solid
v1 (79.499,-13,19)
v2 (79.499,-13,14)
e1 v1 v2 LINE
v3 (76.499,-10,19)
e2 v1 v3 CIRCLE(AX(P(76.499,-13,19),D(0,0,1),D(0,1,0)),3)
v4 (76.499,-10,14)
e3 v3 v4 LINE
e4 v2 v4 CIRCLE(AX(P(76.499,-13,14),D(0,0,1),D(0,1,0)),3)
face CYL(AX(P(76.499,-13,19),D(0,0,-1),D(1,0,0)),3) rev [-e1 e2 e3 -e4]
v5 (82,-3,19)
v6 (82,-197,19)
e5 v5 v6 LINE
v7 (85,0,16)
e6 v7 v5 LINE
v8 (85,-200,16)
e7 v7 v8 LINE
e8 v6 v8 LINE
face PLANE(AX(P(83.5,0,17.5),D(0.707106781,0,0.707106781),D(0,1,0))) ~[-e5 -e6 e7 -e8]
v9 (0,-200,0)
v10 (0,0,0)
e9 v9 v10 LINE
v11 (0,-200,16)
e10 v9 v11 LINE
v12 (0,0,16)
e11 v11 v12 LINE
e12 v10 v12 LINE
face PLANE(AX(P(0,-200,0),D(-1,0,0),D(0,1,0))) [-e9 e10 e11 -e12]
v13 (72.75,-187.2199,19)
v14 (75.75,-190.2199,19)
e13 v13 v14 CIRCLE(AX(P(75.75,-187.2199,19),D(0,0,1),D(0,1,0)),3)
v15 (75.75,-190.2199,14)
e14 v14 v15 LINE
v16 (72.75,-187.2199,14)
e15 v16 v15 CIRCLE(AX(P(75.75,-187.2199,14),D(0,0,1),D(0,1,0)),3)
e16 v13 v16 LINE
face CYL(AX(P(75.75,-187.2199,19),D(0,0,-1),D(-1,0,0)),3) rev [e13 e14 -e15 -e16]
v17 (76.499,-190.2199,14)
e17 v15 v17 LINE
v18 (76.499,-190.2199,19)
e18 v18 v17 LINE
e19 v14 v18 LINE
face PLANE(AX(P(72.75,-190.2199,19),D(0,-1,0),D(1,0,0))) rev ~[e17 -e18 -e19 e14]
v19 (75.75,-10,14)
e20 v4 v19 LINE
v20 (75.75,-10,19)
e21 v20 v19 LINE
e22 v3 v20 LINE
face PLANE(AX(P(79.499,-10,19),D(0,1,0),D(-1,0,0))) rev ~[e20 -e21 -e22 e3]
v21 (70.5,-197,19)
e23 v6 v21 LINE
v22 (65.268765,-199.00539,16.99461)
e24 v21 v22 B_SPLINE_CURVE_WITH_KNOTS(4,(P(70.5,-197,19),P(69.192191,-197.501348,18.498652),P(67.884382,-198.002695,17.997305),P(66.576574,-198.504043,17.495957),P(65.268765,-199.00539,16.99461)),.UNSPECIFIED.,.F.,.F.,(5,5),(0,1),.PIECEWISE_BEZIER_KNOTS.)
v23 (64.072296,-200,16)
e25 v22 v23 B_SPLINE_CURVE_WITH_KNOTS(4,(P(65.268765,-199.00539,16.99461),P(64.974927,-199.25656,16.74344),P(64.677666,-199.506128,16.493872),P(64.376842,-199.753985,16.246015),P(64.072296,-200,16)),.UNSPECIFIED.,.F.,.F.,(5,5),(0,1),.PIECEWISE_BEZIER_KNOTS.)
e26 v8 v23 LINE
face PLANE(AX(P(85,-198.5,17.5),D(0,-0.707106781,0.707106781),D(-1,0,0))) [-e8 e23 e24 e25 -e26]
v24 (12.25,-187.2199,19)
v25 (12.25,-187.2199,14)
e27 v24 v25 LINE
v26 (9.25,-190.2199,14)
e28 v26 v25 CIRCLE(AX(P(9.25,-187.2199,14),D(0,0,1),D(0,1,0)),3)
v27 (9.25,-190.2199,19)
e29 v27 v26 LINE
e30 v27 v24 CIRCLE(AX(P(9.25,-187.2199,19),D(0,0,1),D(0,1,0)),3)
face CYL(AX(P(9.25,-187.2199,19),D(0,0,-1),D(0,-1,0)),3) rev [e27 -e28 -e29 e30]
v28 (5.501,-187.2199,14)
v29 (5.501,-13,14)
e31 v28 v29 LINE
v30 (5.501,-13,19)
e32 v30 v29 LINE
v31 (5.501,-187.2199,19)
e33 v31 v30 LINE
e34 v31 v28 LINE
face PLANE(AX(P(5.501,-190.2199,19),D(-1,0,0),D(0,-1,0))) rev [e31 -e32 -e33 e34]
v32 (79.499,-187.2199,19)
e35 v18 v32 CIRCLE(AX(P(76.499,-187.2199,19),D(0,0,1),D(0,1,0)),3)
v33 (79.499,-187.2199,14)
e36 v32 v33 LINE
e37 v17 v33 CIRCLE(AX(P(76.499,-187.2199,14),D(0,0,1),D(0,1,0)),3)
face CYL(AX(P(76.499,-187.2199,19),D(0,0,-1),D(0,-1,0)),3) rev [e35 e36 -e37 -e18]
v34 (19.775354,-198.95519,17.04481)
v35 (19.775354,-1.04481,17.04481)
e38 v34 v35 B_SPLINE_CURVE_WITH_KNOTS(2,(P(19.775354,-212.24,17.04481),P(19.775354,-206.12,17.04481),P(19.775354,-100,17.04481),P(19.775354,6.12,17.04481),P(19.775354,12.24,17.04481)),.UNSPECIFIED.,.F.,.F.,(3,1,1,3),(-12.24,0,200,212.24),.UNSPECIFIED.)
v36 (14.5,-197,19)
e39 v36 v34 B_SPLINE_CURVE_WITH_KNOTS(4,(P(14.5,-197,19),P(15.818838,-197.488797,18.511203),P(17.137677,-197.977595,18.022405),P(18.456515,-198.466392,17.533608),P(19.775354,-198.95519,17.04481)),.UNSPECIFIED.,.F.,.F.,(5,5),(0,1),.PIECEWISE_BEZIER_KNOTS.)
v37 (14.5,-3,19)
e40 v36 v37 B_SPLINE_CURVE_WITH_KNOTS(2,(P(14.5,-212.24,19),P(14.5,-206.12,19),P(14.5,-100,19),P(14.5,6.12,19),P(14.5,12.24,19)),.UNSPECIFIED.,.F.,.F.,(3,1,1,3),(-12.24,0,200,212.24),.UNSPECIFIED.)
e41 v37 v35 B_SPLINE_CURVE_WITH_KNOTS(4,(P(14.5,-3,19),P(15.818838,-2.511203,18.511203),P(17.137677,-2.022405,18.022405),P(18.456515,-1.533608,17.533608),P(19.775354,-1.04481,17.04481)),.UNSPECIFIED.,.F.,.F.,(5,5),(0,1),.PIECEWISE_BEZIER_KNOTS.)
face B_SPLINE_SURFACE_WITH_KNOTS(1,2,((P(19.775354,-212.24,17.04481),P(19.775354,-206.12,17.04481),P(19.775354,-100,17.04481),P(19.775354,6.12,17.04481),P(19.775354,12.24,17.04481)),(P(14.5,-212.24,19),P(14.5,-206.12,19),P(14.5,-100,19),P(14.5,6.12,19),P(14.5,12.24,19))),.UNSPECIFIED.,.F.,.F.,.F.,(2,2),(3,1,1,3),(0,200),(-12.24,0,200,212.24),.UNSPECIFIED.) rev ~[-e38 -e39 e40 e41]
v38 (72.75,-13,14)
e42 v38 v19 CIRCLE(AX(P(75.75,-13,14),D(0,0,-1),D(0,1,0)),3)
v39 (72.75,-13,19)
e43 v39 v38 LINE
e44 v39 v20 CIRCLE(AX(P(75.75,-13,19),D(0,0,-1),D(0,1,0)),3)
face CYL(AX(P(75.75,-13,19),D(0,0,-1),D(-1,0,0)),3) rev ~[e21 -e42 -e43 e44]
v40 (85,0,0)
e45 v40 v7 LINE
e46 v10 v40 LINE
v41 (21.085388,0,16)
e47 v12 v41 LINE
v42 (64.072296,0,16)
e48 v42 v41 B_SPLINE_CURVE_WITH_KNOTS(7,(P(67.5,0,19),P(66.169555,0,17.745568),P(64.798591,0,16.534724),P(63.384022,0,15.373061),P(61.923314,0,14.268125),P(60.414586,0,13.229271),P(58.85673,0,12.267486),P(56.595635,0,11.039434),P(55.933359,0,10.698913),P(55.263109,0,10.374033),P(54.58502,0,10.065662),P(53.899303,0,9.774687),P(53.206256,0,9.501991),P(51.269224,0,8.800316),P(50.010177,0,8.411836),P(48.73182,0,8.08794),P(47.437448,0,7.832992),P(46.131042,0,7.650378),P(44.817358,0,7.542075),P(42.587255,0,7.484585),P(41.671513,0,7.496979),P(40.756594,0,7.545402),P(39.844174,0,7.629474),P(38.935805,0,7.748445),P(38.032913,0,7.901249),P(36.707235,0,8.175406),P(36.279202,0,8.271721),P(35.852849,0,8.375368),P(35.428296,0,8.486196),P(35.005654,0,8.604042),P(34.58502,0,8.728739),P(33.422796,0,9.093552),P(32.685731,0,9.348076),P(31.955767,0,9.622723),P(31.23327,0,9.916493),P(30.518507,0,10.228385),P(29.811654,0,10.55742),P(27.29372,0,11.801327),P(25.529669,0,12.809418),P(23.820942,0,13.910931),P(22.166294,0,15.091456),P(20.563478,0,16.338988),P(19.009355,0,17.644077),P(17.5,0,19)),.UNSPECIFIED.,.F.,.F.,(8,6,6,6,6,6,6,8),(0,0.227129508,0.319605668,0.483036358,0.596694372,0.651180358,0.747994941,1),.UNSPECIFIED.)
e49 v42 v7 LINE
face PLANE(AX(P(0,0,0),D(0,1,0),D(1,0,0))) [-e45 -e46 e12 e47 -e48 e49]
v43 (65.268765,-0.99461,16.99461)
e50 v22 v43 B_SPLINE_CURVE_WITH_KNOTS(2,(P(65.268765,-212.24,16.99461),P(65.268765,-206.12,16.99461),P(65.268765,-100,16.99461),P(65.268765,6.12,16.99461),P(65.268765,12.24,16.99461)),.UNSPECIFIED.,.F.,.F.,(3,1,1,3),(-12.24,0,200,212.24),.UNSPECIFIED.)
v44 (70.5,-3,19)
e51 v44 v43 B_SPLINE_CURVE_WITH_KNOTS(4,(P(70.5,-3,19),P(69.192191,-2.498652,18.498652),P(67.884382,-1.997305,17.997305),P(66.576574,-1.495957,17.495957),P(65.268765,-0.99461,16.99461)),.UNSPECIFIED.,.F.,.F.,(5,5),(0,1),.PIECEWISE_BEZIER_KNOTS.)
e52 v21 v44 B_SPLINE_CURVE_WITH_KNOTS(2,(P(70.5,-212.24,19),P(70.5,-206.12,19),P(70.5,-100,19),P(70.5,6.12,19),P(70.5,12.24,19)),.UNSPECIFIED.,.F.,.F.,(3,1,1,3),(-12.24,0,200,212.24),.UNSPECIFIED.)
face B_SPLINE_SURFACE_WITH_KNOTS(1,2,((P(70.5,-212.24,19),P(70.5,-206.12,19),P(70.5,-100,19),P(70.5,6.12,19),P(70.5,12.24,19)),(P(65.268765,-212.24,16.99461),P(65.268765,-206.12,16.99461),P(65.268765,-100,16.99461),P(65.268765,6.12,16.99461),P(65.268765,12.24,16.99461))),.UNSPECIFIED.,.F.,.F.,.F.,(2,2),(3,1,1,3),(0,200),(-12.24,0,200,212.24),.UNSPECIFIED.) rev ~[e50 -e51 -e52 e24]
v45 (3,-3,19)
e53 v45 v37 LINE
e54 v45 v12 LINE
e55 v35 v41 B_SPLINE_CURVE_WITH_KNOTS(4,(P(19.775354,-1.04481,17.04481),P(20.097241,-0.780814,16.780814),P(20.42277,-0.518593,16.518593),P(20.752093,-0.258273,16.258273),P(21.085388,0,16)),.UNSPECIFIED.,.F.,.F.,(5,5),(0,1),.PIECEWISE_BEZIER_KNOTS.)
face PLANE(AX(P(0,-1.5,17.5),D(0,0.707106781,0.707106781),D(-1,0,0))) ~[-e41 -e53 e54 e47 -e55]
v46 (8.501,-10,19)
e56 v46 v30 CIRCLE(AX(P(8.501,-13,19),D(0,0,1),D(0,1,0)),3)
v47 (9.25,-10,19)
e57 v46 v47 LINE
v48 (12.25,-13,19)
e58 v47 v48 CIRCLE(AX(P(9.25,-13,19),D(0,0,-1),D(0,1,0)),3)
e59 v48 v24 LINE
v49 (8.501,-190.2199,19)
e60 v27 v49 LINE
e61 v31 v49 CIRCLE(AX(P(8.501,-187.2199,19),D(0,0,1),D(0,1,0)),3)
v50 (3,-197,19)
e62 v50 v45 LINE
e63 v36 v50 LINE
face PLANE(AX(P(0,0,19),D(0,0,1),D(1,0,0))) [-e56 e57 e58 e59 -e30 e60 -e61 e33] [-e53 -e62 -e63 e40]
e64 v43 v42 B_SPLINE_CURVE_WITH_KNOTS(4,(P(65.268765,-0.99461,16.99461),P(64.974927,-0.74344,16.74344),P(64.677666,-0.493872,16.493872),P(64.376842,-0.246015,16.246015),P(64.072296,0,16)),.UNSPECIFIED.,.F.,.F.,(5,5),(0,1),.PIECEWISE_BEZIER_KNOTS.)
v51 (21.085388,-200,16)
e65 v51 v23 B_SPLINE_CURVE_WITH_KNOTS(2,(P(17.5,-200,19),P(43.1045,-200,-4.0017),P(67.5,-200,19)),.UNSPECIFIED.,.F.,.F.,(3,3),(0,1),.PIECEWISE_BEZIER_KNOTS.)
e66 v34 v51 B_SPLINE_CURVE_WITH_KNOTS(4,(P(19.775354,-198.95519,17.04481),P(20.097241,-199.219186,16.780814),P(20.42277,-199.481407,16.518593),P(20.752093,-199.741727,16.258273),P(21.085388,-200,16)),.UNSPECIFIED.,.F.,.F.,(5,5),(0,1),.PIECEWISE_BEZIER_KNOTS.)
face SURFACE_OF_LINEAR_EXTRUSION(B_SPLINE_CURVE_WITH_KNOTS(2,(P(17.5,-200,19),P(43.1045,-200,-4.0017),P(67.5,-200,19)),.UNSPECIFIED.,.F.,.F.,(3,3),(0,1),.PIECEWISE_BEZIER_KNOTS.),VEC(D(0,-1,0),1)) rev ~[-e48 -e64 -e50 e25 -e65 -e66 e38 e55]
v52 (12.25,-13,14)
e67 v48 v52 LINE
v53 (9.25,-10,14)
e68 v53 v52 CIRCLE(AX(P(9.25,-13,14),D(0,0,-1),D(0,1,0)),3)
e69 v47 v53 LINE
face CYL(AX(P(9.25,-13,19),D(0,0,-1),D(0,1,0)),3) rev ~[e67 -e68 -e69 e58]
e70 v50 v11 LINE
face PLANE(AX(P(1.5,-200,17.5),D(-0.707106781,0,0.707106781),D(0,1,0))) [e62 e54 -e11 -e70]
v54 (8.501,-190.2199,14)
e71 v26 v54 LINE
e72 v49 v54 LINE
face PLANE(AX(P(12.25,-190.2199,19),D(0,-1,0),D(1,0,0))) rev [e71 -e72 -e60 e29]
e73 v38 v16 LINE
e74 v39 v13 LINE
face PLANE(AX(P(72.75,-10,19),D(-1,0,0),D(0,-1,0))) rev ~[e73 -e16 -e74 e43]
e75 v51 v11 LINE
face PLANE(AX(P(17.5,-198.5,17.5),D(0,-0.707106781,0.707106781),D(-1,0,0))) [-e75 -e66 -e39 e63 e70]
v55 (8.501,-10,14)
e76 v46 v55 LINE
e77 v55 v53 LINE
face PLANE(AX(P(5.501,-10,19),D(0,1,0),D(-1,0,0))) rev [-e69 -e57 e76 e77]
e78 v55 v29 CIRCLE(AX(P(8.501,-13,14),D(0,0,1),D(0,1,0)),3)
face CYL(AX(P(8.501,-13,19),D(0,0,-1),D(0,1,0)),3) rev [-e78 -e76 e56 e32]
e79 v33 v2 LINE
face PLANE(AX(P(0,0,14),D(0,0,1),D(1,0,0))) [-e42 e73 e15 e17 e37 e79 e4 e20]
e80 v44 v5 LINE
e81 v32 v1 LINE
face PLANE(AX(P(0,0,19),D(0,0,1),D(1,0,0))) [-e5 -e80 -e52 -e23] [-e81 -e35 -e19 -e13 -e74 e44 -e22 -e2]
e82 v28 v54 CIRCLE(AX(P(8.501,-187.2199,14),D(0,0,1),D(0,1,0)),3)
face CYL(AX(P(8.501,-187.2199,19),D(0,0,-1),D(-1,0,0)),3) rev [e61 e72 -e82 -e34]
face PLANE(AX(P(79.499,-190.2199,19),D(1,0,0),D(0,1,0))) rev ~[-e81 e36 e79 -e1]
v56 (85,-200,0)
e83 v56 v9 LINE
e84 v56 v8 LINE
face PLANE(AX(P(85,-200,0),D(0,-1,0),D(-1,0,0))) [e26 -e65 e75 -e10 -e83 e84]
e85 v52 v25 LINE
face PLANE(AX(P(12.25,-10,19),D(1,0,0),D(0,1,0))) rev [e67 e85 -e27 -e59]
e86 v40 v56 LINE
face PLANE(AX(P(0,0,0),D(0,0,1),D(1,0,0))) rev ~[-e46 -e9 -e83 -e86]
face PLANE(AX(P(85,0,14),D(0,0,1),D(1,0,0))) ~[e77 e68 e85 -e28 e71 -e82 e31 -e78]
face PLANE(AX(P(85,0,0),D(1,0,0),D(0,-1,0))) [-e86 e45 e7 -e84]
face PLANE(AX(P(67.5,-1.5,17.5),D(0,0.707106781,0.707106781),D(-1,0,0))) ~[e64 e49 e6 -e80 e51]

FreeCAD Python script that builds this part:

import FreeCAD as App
import Part
import Sketcher


def edges_at(feature, points):
    """Names of the edges that pass closest to the given points."""
    edges = feature.Shape.Edges
    near = lambda p: min(range(len(edges)), key=lambda i: edges[i].distToShape(Part.Vertex(*p))[0])
    return sorted({f"Edge{near(p) + 1}" for p in points})

doc = App.newDocument("Part")
params = doc.addObject("Spreadsheet::Sheet", "Params")
for row, (alias, value) in enumerate([
    ("sketch1_width", "85 mm"),
    ("sketch1_height", "200 mm"),
    ("pad1_length", "19 mm"),
    ("chamfer_size", "3 mm"),
    ("sketch3_height", "180.22 mm"),
    ("pocket2_length", "5 mm"),
    ("fillet_radius", "3 mm"),
], start=1):
    params.set(f"A{row}", alias)
    params.set(f"B{row}", "=" + value)
    params.setAlias(f"B{row}", alias)

body = doc.addObject("PartDesign::Body", "Body")

sketch1 = body.newObject("Sketcher::SketchObject", "Sketch")
sketch1.AttachmentSupport = (doc.getObject("XY_Plane"), [""])
sketch1.MapMode = "FlatFace"
sketch1.addGeometry(Part.LineSegment(App.Vector(85, 0, 0), App.Vector(0, 0, 0)), False)
sketch1.addGeometry(Part.LineSegment(App.Vector(0, 0, 0), App.Vector(0, -200, 0)), False)
sketch1.addGeometry(Part.LineSegment(App.Vector(0, -200, 0), App.Vector(85, -200, 0)), False)
sketch1.addGeometry(Part.LineSegment(App.Vector(85, -200, 0), App.Vector(85, 0, 0)), False)
sketch1.addConstraint(Sketcher.Constraint("Coincident", 0, 2, 1, 1))
sketch1.addConstraint(Sketcher.Constraint("Coincident", 1, 2, 2, 1))
sketch1.addConstraint(Sketcher.Constraint("Coincident", 2, 2, 3, 1))
sketch1.addConstraint(Sketcher.Constraint("Coincident", 3, 2, 0, 1))
sketch1.addConstraint(Sketcher.Constraint("Horizontal", 0))
sketch1.addConstraint(Sketcher.Constraint("Vertical", 1))
sketch1.addConstraint(Sketcher.Constraint("Horizontal", 2))
sketch1.addConstraint(Sketcher.Constraint("Vertical", 3))
sketch1.addConstraint(Sketcher.Constraint("Coincident", 0, 2, -1, 1))
sketch1.addConstraint(Sketcher.Constraint("DistanceX", 0, 2, 0, 1, 85.0))
sketch1.addConstraint(Sketcher.Constraint("DistanceY", 1, 2, 1, 1, 200.0))
sketch1.setExpression("Constraints[9]", "Params.sketch1_width")
sketch1.setExpression("Constraints[10]", "Params.sketch1_height")
pad1 = body.newObject("PartDesign::Pad", "Pad")
pad1.Profile = sketch1
pad1.setExpression("Length", "Params.pad1_length")

sketch2 = body.newObject("Sketcher::SketchObject", "Sketch001")
sketch2.AttachmentSupport = (doc.getObject("XZ_Plane"), [""])
sketch2.MapMode = "FlatFace"
sketch2.AttachmentOffset = App.Placement(App.Vector(0, 0, 200), App.Rotation())
sketch2.addGeometry(Part.BSplineCurve([App.Vector(17.5, 19, 0), App.Vector(43.1045, -4.0017, 0), App.Vector(67.5, 19, 0)], [3, 3], [0, 1], False, 2, [1, 1, 1], False), False)
sketch2.addGeometry(Part.LineSegment(App.Vector(67.5, 19, 0), App.Vector(17.5, 19, 0)), False)
sketch2.addConstraint(Sketcher.Constraint("Block", 0))
sketch2.addConstraint(Sketcher.Constraint("Coincident", 0, 1, 1, 2))
sketch2.addConstraint(Sketcher.Constraint("Coincident", 1, 1, 0, 2))
pocket1 = body.newObject("PartDesign::Pocket", "Pocket")
pocket1.Profile = sketch2
pocket1.Type = "ThroughAll"
doc.recompute()

chamfer = body.newObject("PartDesign::Chamfer", "Chamfer")
chamfer.Base = (pocket1, edges_at(pocket1, [
    (0, -100, 19),
    (76.25, -200, 19),
    (8.75, -200, 19),
    (67.5, -100, 19),
    (17.5, -100, 19),
    (76.25, 0, 19),
    (8.75, 0, 19),
    (85, -100, 19),
]))
chamfer.setExpression("Size", "Params.chamfer_size")

sketch3 = body.newObject("Sketcher::SketchObject", "Sketch002")
sketch3.AttachmentSupport = (doc.getObject("XY_Plane"), [""])
sketch3.MapMode = "FlatFace"
sketch3.AttachmentOffset = App.Placement(App.Vector(0, 0, 19), App.Rotation())
sketch3.addGeometry(Part.LineSegment(App.Vector(73, -10, 0), App.Vector(73, -190, 0)), False)
sketch3.addGeometry(Part.LineSegment(App.Vector(73, -190, 0), App.Vector(79, -190, 0)), False)
sketch3.addGeometry(Part.LineSegment(App.Vector(79, -190, 0), App.Vector(79, -10, 0)), False)
sketch3.addGeometry(Part.LineSegment(App.Vector(79, -10, 0), App.Vector(73, -10, 0)), False)
sketch3.addConstraint(Sketcher.Constraint("Coincident", 0, 2, 1, 1))
sketch3.addConstraint(Sketcher.Constraint("Coincident", 1, 2, 2, 1))
sketch3.addConstraint(Sketcher.Constraint("Coincident", 2, 2, 3, 1))
sketch3.addConstraint(Sketcher.Constraint("Coincident", 3, 2, 0, 1))
sketch3.addConstraint(Sketcher.Constraint("Vertical", 0))
sketch3.addConstraint(Sketcher.Constraint("Horizontal", 1))
sketch3.addConstraint(Sketcher.Constraint("Vertical", 2))
sketch3.addConstraint(Sketcher.Constraint("Horizontal", 3))
sketch3.addConstraint(Sketcher.Constraint("DistanceX", 1, 1, 1, 2, 6.749))
sketch3.addConstraint(Sketcher.Constraint("DistanceY", 2, 2, -1, 1, 10.0))
sketch3.addConstraint(Sketcher.Constraint("DistanceY", 0, 2, 0, 1, 180.22))
sketch3.addConstraint(Sketcher.Constraint("DistanceX", -1, 1, 0, 2, 72.75))
sketch3.setExpression("Constraints[10]", "Params.sketch3_height")
pocket2 = body.newObject("PartDesign::Pocket", "Pocket001")
pocket2.Profile = sketch3
pocket2.setExpression("Length", "Params.pocket2_length")
doc.recompute()

datumplane = body.newObject("PartDesign::Plane", "DatumPlane")
datumplane.AttachmentSupport = (doc.getObject("YZ_Plane"), [""])
datumplane.MapMode = "FlatFace"
datumplane.AttachmentOffset = App.Placement(App.Vector(0, 0, 42.5), App.Rotation())
mirrored = body.newObject("PartDesign::Mirrored", "Mirrored")
mirrored.Originals = [pocket2]
mirrored.MirrorPlane = (datumplane, [""])
body.Tip = mirrored
doc.recompute()

fillet = body.newObject("PartDesign::Fillet", "Fillet")
fillet.Base = (mirrored, edges_at(mirrored, [
    (5.501, -10, 16.5),
    (72.75, -10, 16.5),
    (79.499, -10, 16.5),
    (12.25, -10, 16.5),
    (72.75, -190.22, 16.5),
    (5.501, -190.22, 16.5),
    (79.499, -190.22, 16.5),
    (12.25, -190.22, 16.5),
]))
fillet.setExpression("Radius", "Params.fillet_radius")

doc.recompute()
